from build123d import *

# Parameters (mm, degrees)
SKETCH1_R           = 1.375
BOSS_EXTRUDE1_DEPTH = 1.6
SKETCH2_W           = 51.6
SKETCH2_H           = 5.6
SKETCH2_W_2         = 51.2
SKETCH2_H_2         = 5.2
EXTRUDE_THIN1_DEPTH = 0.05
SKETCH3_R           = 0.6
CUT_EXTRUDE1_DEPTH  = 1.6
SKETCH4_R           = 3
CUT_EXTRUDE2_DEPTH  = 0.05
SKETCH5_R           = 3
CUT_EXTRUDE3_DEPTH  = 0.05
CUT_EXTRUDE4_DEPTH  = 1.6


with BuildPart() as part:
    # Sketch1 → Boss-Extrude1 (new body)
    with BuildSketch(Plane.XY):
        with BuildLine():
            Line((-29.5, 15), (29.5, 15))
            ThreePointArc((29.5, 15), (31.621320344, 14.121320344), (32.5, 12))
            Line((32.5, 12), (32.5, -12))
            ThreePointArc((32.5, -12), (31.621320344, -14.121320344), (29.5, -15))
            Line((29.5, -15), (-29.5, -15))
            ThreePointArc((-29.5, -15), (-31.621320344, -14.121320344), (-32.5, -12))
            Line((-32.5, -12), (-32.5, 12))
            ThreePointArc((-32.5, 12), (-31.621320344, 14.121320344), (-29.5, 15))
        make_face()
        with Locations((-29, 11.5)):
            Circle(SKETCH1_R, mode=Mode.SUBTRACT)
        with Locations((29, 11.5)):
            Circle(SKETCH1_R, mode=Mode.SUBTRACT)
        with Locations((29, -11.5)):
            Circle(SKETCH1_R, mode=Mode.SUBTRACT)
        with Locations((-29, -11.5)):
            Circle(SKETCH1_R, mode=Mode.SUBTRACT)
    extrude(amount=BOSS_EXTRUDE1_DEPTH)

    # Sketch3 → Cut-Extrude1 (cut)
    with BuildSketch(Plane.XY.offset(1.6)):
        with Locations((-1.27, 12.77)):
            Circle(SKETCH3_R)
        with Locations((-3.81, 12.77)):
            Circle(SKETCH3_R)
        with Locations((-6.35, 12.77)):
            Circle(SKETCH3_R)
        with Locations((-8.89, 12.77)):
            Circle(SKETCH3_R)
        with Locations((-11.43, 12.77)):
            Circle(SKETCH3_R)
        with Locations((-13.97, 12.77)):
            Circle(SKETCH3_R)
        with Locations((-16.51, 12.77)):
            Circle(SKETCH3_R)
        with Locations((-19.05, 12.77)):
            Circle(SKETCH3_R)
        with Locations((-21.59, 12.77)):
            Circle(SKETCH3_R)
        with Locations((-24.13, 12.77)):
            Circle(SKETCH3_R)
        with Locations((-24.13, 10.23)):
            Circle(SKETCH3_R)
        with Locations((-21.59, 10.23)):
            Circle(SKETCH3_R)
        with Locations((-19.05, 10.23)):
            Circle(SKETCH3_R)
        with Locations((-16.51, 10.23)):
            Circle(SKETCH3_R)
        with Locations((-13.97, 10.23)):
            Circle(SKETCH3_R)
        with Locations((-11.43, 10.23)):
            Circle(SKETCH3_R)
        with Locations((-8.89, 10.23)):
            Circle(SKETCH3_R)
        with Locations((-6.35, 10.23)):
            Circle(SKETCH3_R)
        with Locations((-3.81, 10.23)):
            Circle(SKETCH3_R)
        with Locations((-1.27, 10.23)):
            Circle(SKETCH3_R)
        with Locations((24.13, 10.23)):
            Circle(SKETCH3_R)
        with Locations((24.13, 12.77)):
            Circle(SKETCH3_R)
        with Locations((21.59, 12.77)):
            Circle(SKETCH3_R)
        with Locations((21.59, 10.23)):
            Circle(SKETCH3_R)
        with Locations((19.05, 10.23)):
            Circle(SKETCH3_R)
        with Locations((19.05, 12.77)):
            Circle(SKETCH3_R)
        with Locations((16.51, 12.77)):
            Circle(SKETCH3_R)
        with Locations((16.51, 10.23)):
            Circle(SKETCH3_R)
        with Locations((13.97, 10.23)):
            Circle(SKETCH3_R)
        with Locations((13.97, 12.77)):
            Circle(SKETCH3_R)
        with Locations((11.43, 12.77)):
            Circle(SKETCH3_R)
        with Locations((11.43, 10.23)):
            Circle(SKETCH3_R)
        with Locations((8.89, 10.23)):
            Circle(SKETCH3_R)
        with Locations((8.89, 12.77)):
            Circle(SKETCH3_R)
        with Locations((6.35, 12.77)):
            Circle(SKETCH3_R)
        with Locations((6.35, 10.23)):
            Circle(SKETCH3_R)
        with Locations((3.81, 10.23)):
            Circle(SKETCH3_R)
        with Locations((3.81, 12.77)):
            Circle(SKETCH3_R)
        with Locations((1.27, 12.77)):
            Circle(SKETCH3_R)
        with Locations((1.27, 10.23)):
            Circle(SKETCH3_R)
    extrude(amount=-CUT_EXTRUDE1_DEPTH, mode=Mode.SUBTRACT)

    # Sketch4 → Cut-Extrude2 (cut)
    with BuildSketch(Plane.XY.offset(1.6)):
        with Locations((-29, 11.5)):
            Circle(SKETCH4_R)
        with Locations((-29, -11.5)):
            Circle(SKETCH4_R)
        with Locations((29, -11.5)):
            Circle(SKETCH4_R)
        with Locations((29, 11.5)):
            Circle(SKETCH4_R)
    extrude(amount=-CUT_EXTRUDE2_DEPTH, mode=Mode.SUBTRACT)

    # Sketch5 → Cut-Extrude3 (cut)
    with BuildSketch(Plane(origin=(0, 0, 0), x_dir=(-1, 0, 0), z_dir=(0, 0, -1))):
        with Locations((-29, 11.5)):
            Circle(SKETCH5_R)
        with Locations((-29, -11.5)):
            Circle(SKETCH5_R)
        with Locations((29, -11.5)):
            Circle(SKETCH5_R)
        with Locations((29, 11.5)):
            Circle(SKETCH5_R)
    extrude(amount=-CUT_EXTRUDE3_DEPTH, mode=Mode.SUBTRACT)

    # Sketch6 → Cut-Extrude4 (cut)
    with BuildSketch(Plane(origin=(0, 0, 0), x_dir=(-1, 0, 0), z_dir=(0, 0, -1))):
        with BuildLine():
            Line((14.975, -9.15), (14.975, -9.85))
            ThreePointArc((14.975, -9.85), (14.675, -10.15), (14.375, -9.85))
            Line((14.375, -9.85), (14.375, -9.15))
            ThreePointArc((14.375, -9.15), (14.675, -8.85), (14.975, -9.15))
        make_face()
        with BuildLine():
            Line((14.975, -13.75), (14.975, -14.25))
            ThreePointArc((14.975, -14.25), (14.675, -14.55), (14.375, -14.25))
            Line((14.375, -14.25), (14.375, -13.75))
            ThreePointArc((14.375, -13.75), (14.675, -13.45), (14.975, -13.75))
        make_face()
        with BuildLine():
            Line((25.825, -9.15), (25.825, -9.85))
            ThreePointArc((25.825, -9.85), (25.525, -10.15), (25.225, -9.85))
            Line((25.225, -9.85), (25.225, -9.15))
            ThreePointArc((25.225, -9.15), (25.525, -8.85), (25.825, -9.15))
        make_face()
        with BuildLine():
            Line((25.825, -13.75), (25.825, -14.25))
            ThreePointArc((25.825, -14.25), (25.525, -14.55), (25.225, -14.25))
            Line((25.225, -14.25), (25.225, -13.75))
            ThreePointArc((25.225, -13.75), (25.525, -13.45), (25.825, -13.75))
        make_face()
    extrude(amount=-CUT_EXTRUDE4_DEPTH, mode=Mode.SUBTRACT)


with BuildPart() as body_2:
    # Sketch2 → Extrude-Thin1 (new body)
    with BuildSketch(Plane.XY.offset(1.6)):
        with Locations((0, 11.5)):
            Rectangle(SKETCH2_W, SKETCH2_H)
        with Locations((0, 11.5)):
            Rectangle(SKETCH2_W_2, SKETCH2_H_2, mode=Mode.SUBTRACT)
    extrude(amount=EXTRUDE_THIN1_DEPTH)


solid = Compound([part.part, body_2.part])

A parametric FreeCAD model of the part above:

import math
import FreeCAD as App
import Part
import Sketcher

V = App.Vector
Q = App.Units.Quantity


def add_polygon(sketch, points):
    """Adds a closed chain of lines whose ends are joined by coincident constraints."""
    first, n = sketch.GeometryCount, len(points)
    for a, b in zip(points, points[1:] + points[:1]):
        sketch.addGeometry(Part.LineSegment(App.Vector(*a, 0), App.Vector(*b, 0)), False)
    for i in range(n):
        sketch.addConstraint(Sketcher.Constraint("Coincident", first + i, 2, first + (i + 1) % n, 1))

doc = App.newDocument("Part")
body = doc.addObject("PartDesign::Body", "Body")

# Sketch on XY plane
sketch1 = body.newObject("Sketcher::SketchObject", "Sketch")
sketch1.AttachmentSupport = (doc.getObject("XY_Plane"), [""])
sketch1.MapMode = "FlatFace"
sketch1.addGeometry(Part.LineSegment(V(29.5, 15, 0), V(-29.5, 15, 0)), False)
sketch1.addGeometry(Part.ArcOfCircle(Part.Circle(V(-29.5, 12, 0), V(0, 0, 1), 3), math.radians(90), math.radians(180)), False)
sketch1.addGeometry(Part.LineSegment(V(-32.5, 12, 0), V(-32.5, -12, 0)), False)
sketch1.addGeometry(Part.ArcOfCircle(Part.Circle(V(-29.5, -12, 0), V(0, 0, 1), 3), math.radians(180), math.radians(270)), False)
sketch1.addGeometry(Part.LineSegment(V(-29.5, -15, 0), V(29.5, -15, 0)), False)
sketch1.addGeometry(Part.ArcOfCircle(Part.Circle(V(29.5, -12, 0), V(0, 0, 1), 3), math.radians(-90), math.radians(0)), False)
sketch1.addGeometry(Part.LineSegment(V(32.5, -12, 0), V(32.5, 12, 0)), False)
sketch1.addGeometry(Part.ArcOfCircle(Part.Circle(V(29.5, 12, 0), V(0, 0, 1), 3), math.radians(0), math.radians(90)), False)
sketch1.addGeometry(Part.Circle(V(29, -11.5, 0), V(0, 0, 1), 1.375), False)
sketch1.addGeometry(Part.Circle(V(-29, -11.5, 0), V(0, 0, 1), 1.375), False)
sketch1.addGeometry(Part.Circle(V(29, 11.5, 0), V(0, 0, 1), 1.375), False)
sketch1.addGeometry(Part.Circle(V(-29, 11.5, 0), V(0, 0, 1), 1.375), False)
sketch1.addConstraint(Sketcher.Constraint("Tangent", 0, 2, 1, 1))
sketch1.addConstraint(Sketcher.Constraint("Tangent", 1, 2, 2, 1))
sketch1.addConstraint(Sketcher.Constraint("Tangent", 2, 2, 3, 1))
sketch1.addConstraint(Sketcher.Constraint("Tangent", 3, 2, 4, 1))
sketch1.addConstraint(Sketcher.Constraint("Tangent", 4, 2, 5, 1))
sketch1.addConstraint(Sketcher.Constraint("Tangent", 5, 2, 6, 1))
sketch1.addConstraint(Sketcher.Constraint("Tangent", 6, 2, 7, 1))
sketch1.addConstraint(Sketcher.Constraint("Tangent", 7, 2, 0, 1))
sketch1.addConstraint(Sketcher.Constraint("Horizontal", 0))
sketch1.addConstraint(Sketcher.Constraint("Vertical", 2))
sketch1.addConstraint(Sketcher.Constraint("Horizontal", 4))
sketch1.addConstraint(Sketcher.Constraint("Vertical", 6))
sketch1.addConstraint(Sketcher.Constraint("Equal", 1, 3))
sketch1.addConstraint(Sketcher.Constraint("Equal", 3, 5))
sketch1.addConstraint(Sketcher.Constraint("Equal", 5, 7))
sketch1.addConstraint(Sketcher.Constraint("Equal", 8, 9))
sketch1.addConstraint(Sketcher.Constraint("Equal", 9, 10))
sketch1.addConstraint(Sketcher.Constraint("Equal", 10, 11))
sketch1.addConstraint(Sketcher.Constraint("Symmetric", 1, 3, 5, 3, -1, 1))
sketch1.addConstraint(Sketcher.Constraint("Symmetric", 9, 3, 10, 3, -1, 1))
sketch1.addConstraint(Sketcher.Constraint("Symmetric", 8, 3, 11, 3, -1, 1))
sketch1.addConstraint(Sketcher.Constraint("Symmetric", 8, 3, 9, 3, -2))
sketch1.addConstraint(Sketcher.Constraint("Radius", 1, Q("3 mm")))
sketch1.addConstraint(Sketcher.Constraint("Diameter", 8, Q("2.75 mm")))
sketch1.addConstraint(Sketcher.Constraint("DistanceX", 0, 2, 0, 1, Q("59 mm")))
sketch1.addConstraint(Sketcher.Constraint("DistanceY", 2, 2, 2, 1, Q("24 mm")))
sketch1.addConstraint(Sketcher.Constraint("DistanceX", -1, 1, 8, 3, Q("29 mm")))
sketch1.addConstraint(Sketcher.Constraint("DistanceY", 8, 3, 10, 3, Q("23 mm")))
pad1 = body.newObject("PartDesign::Pad", "Pad")
pad1.Profile = sketch1
pad1.Length = 1.6

# Sketch on XY plane
sketch2 = body.newObject("Sketcher::SketchObject", "Sketch001")
sketch2.AttachmentSupport = (doc.getObject("XY_Plane"), [""])
sketch2.MapMode = "FlatFace"
sketch2.AttachmentOffset = App.Placement(V(0, 0, 1.6), App.Rotation())
sketch2.addGeometry(Part.Circle(V(-1.27, 12.77, 0), V(0, 0, 1), 0.6), False)
sketch2.addGeometry(Part.Circle(V(-3.81, 12.77, 0), V(0, 0, 1), 0.6), False)
sketch2.addGeometry(Part.Circle(V(-6.35, 12.77, 0), V(0, 0, 1), 0.6), False)
sketch2.addGeometry(Part.Circle(V(-8.89, 12.77, 0), V(0, 0, 1), 0.6), False)
sketch2.addGeometry(Part.Circle(V(-11.43, 12.77, 0), V(0, 0, 1), 0.6), False)
sketch2.addGeometry(Part.Circle(V(-13.97, 12.77, 0), V(0, 0, 1), 0.6), False)
sketch2.addGeometry(Part.Circle(V(-16.51, 12.77, 0), V(0, 0, 1), 0.6), False)
sketch2.addGeometry(Part.Circle(V(-19.05, 12.77, 0), V(0, 0, 1), 0.6), False)
sketch2.addGeometry(Part.Circle(V(-21.59, 12.77, 0), V(0, 0, 1), 0.6), False)
sketch2.addGeometry(Part.Circle(V(-24.13, 12.77, 0), V(0, 0, 1), 0.6), False)
sketch2.addGeometry(Part.Circle(V(-24.13, 10.23, 0), V(0, 0, 1), 0.6), False)
sketch2.addGeometry(Part.Circle(V(-21.59, 10.23, 0), V(0, 0, 1), 0.6), False)
sketch2.addGeometry(Part.Circle(V(-19.05, 10.23, 0), V(0, 0, 1), 0.6), False)
sketch2.addGeometry(Part.Circle(V(-16.51, 10.23, 0), V(0, 0, 1), 0.6), False)
sketch2.addGeometry(Part.Circle(V(-13.97, 10.23, 0), V(0, 0, 1), 0.6), False)
sketch2.addGeometry(Part.Circle(V(-11.43, 10.23, 0), V(0, 0, 1), 0.6), False)
sketch2.addGeometry(Part.Circle(V(-8.89, 10.23, 0), V(0, 0, 1), 0.6), False)
sketch2.addGeometry(Part.Circle(V(-6.35, 10.23, 0), V(0, 0, 1), 0.6), False)
sketch2.addGeometry(Part.Circle(V(-3.81, 10.23, 0), V(0, 0, 1), 0.6), False)
sketch2.addGeometry(Part.Circle(V(-1.27, 10.23, 0), V(0, 0, 1), 0.6), False)
sketch2.addGeometry(Part.Circle(V(24.13, 10.23, 0), V(0, 0, 1), 0.6), False)
sketch2.addGeometry(Part.Circle(V(24.13, 12.77, 0), V(0, 0, 1), 0.6), False)
sketch2.addGeometry(Part.Circle(V(21.59, 12.77, 0), V(0, 0, 1), 0.6), False)
sketch2.addGeometry(Part.Circle(V(21.59, 10.23, 0), V(0, 0, 1), 0.6), False)
sketch2.addGeometry(Part.Circle(V(19.05, 10.23, 0), V(0, 0, 1), 0.6), False)
sketch2.addGeometry(Part.Circle(V(19.05, 12.77, 0), V(0, 0, 1), 0.6), False)
sketch2.addGeometry(Part.Circle(V(16.51, 12.77, 0), V(0, 0, 1), 0.6), False)
sketch2.addGeometry(Part.Circle(V(16.51, 10.23, 0), V(0, 0, 1), 0.6), False)
sketch2.addGeometry(Part.Circle(V(13.97, 10.23, 0), V(0, 0, 1), 0.6), False)
sketch2.addGeometry(Part.Circle(V(13.97, 12.77, 0), V(0, 0, 1), 0.6), False)
sketch2.addGeometry(Part.Circle(V(11.43, 12.77, 0), V(0, 0, 1), 0.6), False)
sketch2.addGeometry(Part.Circle(V(11.43, 10.23, 0), V(0, 0, 1), 0.6), False)
sketch2.addGeometry(Part.Circle(V(8.89, 10.23, 0), V(0, 0, 1), 0.6), False)
sketch2.addGeometry(Part.Circle(V(8.89, 12.77, 0), V(0, 0, 1), 0.6), False)
sketch2.addGeometry(Part.Circle(V(6.35, 12.77, 0), V(0, 0, 1), 0.6), False)
sketch2.addGeometry(Part.Circle(V(6.35, 10.23, 0), V(0, 0, 1), 0.6), False)
sketch2.addGeometry(Part.Circle(V(3.81, 10.23, 0), V(0, 0, 1), 0.6), False)
sketch2.addGeometry(Part.Circle(V(3.81, 12.77, 0), V(0, 0, 1), 0.6), False)
sketch2.addGeometry(Part.Circle(V(1.27, 12.77, 0), V(0, 0, 1), 0.6), False)
sketch2.addGeometry(Part.Circle(V(1.27, 10.23, 0), V(0, 0, 1), 0.6), False)
sketch2.addConstraint(Sketcher.Constraint("Equal", 0, 1))
sketch2.addConstraint(Sketcher.Constraint("Equal", 1, 2))
sketch2.addConstraint(Sketcher.Constraint("Equal", 2, 3))
sketch2.addConstraint(Sketcher.Constraint("Equal", 3, 4))
sketch2.addConstraint(Sketcher.Constraint("Equal", 4, 5))
sketch2.addConstraint(Sketcher.Constraint("Equal", 5, 6))
sketch2.addConstraint(Sketcher.Constraint("Equal", 6, 7))
sketch2.addConstraint(Sketcher.Constraint("Equal", 7, 8))
sketch2.addConstraint(Sketcher.Constraint("Equal", 8, 9))
sketch2.addConstraint(Sketcher.Constraint("Equal", 9, 10))
sketch2.addConstraint(Sketcher.Constraint("Equal", 10, 11))
sketch2.addConstraint(Sketcher.Constraint("Equal", 11, 12))
sketch2.addConstraint(Sketcher.Constraint("Equal", 12, 13))
sketch2.addConstraint(Sketcher.Constraint("Equal", 13, 14))
sketch2.addConstraint(Sketcher.Constraint("Equal", 14, 15))
sketch2.addConstraint(Sketcher.Constraint("Equal", 15, 16))
sketch2.addConstraint(Sketcher.Constraint("Equal", 16, 17))
sketch2.addConstraint(Sketcher.Constraint("Equal", 17, 18))
sketch2.addConstraint(Sketcher.Constraint("Equal", 18, 19))
sketch2.addConstraint(Sketcher.Constraint("Equal", 19, 20))
sketch2.addConstraint(Sketcher.Constraint("Equal", 20, 21))
sketch2.addConstraint(Sketcher.Constraint("Equal", 21, 22))
sketch2.addConstraint(Sketcher.Constraint("Equal", 22, 23))
sketch2.addConstraint(Sketcher.Constraint("Equal", 23, 24))
sketch2.addConstraint(Sketcher.Constraint("Equal", 24, 25))
sketch2.addConstraint(Sketcher.Constraint("Equal", 25, 26))
sketch2.addConstraint(Sketcher.Constraint("Equal", 26, 27))
sketch2.addConstraint(Sketcher.Constraint("Equal", 27, 28))
sketch2.addConstraint(Sketcher.Constraint("Equal", 28, 29))
sketch2.addConstraint(Sketcher.Constraint("Equal", 29, 30))
sketch2.addConstraint(Sketcher.Constraint("Equal", 30, 31))
sketch2.addConstraint(Sketcher.Constraint("Equal", 31, 32))
sketch2.addConstraint(Sketcher.Constraint("Equal", 32, 33))
sketch2.addConstraint(Sketcher.Constraint("Equal", 33, 34))
sketch2.addConstraint(Sketcher.Constraint("Equal", 34, 35))
sketch2.addConstraint(Sketcher.Constraint("Equal", 35, 36))
sketch2.addConstraint(Sketcher.Constraint("Equal", 36, 37))
sketch2.addConstraint(Sketcher.Constraint("Equal", 37, 38))
sketch2.addConstraint(Sketcher.Constraint("Equal", 38, 39))
sketch2.addConstraint(Sketcher.Constraint("Symmetric", 10, 3, 20, 3, -2))
sketch2.addConstraint(Sketcher.Constraint("Symmetric", 9, 3, 21, 3, -2))
sketch2.addConstraint(Sketcher.Constraint("Symmetric", 8, 3, 22, 3, -2))
sketch2.addConstraint(Sketcher.Constraint("Symmetric", 11, 3, 23, 3, -2))
sketch2.addConstraint(Sketcher.Constraint("Symmetric", 12, 3, 24, 3, -2))
sketch2.addConstraint(Sketcher.Constraint("Symmetric", 7, 3, 25, 3, -2))
sketch2.addConstraint(Sketcher.Constraint("Symmetric", 6, 3, 26, 3, -2))
sketch2.addConstraint(Sketcher.Constraint("Symmetric", 13, 3, 27, 3, -2))
sketch2.addConstraint(Sketcher.Constraint("Symmetric", 14, 3, 28, 3, -2))
sketch2.addConstraint(Sketcher.Constraint("Symmetric", 5, 3, 29, 3, -2))
sketch2.addConstraint(Sketcher.Constraint("Symmetric", 4, 3, 30, 3, -2))
sketch2.addConstraint(Sketcher.Constraint("Symmetric", 15, 3, 31, 3, -2))
sketch2.addConstraint(Sketcher.Constraint("Symmetric", 16, 3, 32, 3, -2))
sketch2.addConstraint(Sketcher.Constraint("Symmetric", 3, 3, 33, 3, -2))
sketch2.addConstraint(Sketcher.Constraint("Symmetric", 2, 3, 34, 3, -2))
sketch2.addConstraint(Sketcher.Constraint("Symmetric", 17, 3, 35, 3, -2))
sketch2.addConstraint(Sketcher.Constraint("Symmetric", 18, 3, 36, 3, -2))
sketch2.addConstraint(Sketcher.Constraint("Symmetric", 1, 3, 37, 3, -2))
sketch2.addConstraint(Sketcher.Constraint("Symmetric", 0, 3, 38, 3, -2))
sketch2.addConstraint(Sketcher.Constraint("Symmetric", 19, 3, 39, 3, -2))
sketch2.addConstraint(Sketcher.Constraint("Horizontal", 0, 3, 1, 3))
sketch2.addConstraint(Sketcher.Constraint("Horizontal", 1, 3, 2, 3))
sketch2.addConstraint(Sketcher.Constraint("Horizontal", 2, 3, 3, 3))
sketch2.addConstraint(Sketcher.Constraint("Horizontal", 3, 3, 4, 3))
sketch2.addConstraint(Sketcher.Constraint("Horizontal", 4, 3, 5, 3))
sketch2.addConstraint(Sketcher.Constraint("Horizontal", 5, 3, 6, 3))
sketch2.addConstraint(Sketcher.Constraint("Horizontal", 6, 3, 7, 3))
sketch2.addConstraint(Sketcher.Constraint("Horizontal", 7, 3, 8, 3))
sketch2.addConstraint(Sketcher.Constraint("Horizontal", 8, 3, 9, 3))
sketch2.addConstraint(Sketcher.Constraint("Horizontal", 10, 3, 11, 3))
sketch2.addConstraint(Sketcher.Constraint("Horizontal", 11, 3, 12, 3))
sketch2.addConstraint(Sketcher.Constraint("Horizontal", 12, 3, 13, 3))
sketch2.addConstraint(Sketcher.Constraint("Horizontal", 13, 3, 14, 3))
sketch2.addConstraint(Sketcher.Constraint("Horizontal", 14, 3, 15, 3))
sketch2.addConstraint(Sketcher.Constraint("Horizontal", 15, 3, 16, 3))
sketch2.addConstraint(Sketcher.Constraint("Horizontal", 16, 3, 17, 3))
sketch2.addConstraint(Sketcher.Constraint("Horizontal", 17, 3, 18, 3))
sketch2.addConstraint(Sketcher.Constraint("Horizontal", 18, 3, 19, 3))
sketch2.addConstraint(Sketcher.Constraint("Vertical", 9, 3, 10, 3))
sketch2.addConstraint(Sketcher.Constraint("Vertical", 8, 3, 11, 3))
sketch2.addConstraint(Sketcher.Constraint("Vertical", 7, 3, 12, 3))
sketch2.addConstraint(Sketcher.Constraint("Vertical", 6, 3, 13, 3))
sketch2.addConstraint(Sketcher.Constraint("Vertical", 5, 3, 14, 3))
sketch2.addConstraint(Sketcher.Constraint("Vertical", 4, 3, 15, 3))
sketch2.addConstraint(Sketcher.Constraint("Vertical", 3, 3, 16, 3))
sketch2.addConstraint(Sketcher.Constraint("Vertical", 2, 3, 17, 3))
sketch2.addConstraint(Sketcher.Constraint("Vertical", 1, 3, 18, 3))
sketch2.addConstraint(Sketcher.Constraint("Vertical", 0, 3, 19, 3))
sketch2.addConstraint(Sketcher.Constraint("Diameter", 0, Q("1.2 mm")))
sketch2.addConstraint(Sketcher.Constraint("DistanceX", 5, 3, 0, 3, Q("12.7 mm")))
sketch2.addConstraint(Sketcher.Constraint("DistanceX", 6, 3, 1, 3, Q("12.7 mm")))
sketch2.addConstraint(Sketcher.Constraint("DistanceX", 7, 3, 2, 3, Q("12.7 mm")))
sketch2.addConstraint(Sketcher.Constraint("DistanceX", 8, 3, 3, 3, Q("12.7 mm")))
sketch2.addConstraint(Sketcher.Constraint("DistanceX", 9, 3, 4, 3, Q("12.7 mm")))
sketch2.addConstraint(Sketcher.Constraint("DistanceX", 19, 3, 20, 3, Q("25.4 mm")))
sketch2.addConstraint(Sketcher.Constraint("DistanceX", 1, 3, 22, 3, Q("25.4 mm")))
sketch2.addConstraint(Sketcher.Constraint("DistanceX", 0, 3, -1, 1, Q("1.27 mm")))
sketch2.addConstraint(Sketcher.Constraint("DistanceY", -1, 1, 0, 3, Q("12.77 mm")))
sketch2.addConstraint(Sketcher.Constraint("DistanceX", 1, 3, -1, 1, Q("3.81 mm")))
sketch2.addConstraint(Sketcher.Constraint("DistanceX", 2, 3, -1, 1, Q("6.35 mm")))
sketch2.addConstraint(Sketcher.Constraint("DistanceY", -1, 1, 10, 3, Q("10.23 mm")))
pocket1 = body.newObject("PartDesign::Pocket", "Pocket")
pocket1.Profile = sketch2
pocket1.Length = 1.6

# Sketch on XY plane
sketch3 = body.newObject("Sketcher::SketchObject", "Sketch002")
sketch3.AttachmentSupport = (doc.getObject("XY_Plane"), [""])
sketch3.MapMode = "FlatFace"
sketch3.AttachmentOffset = App.Placement(V(0, 0, 1.6), App.Rotation())
sketch3.addGeometry(Part.Circle(V(-29, 11.5, 0), V(0, 0, 1), 3), False)
sketch3.addGeometry(Part.Circle(V(-29, -11.5, 0), V(0, 0, 1), 3), False)
sketch3.addGeometry(Part.Circle(V(29, -11.5, 0), V(0, 0, 1), 3), False)
sketch3.addGeometry(Part.Circle(V(29, 11.5, 0), V(0, 0, 1), 3), False)
sketch3.addConstraint(Sketcher.Constraint("Equal", 0, 1))
sketch3.addConstraint(Sketcher.Constraint("Equal", 1, 2))
sketch3.addConstraint(Sketcher.Constraint("Equal", 2, 3))
sketch3.addConstraint(Sketcher.Constraint("Symmetric", 0, 3, 2, 3, -1, 1))
sketch3.addConstraint(Sketcher.Constraint("Symmetric", 1, 3, 3, 3, -1, 1))
sketch3.addConstraint(Sketcher.Constraint("Symmetric", 1, 3, 2, 3, -2))
sketch3.addConstraint(Sketcher.Constraint("Diameter", 0, Q("6 mm")))
sketch3.addConstraint(Sketcher.Constraint("DistanceX", 0, 3, -1, 1, Q("29 mm")))
sketch3.addConstraint(Sketcher.Constraint("DistanceY", 1, 3, 0, 3, Q("23 mm")))
pocket2 = body.newObject("PartDesign::Pocket", "Pocket001")
pocket2.Profile = sketch3
pocket2.Length = 0.05

# Sketch on XY plane
sketch4 = body.newObject("Sketcher::SketchObject", "Sketch003")
sketch4.AttachmentSupport = (doc.getObject("XY_Plane"), [""])
sketch4.MapMode = "FlatFace"
sketch4.addGeometry(Part.Circle(V(29, 11.5, 0), V(0, 0, 1), 3), False)
sketch4.addGeometry(Part.Circle(V(29, -11.5, 0), V(0, 0, 1), 3), False)
sketch4.addGeometry(Part.Circle(V(-29, -11.5, 0), V(0, 0, 1), 3), False)
sketch4.addGeometry(Part.Circle(V(-29, 11.5, 0), V(0, 0, 1), 3), False)
sketch4.addConstraint(Sketcher.Constraint("Equal", 0, 1))
sketch4.addConstraint(Sketcher.Constraint("Equal", 1, 2))
sketch4.addConstraint(Sketcher.Constraint("Equal", 2, 3))
sketch4.addConstraint(Sketcher.Constraint("Symmetric", 0, 3, 2, 3, -1, 1))
sketch4.addConstraint(Sketcher.Constraint("Symmetric", 1, 3, 3, 3, -1, 1))
sketch4.addConstraint(Sketcher.Constraint("Symmetric", 1, 3, 2, 3, -2))
sketch4.addConstraint(Sketcher.Constraint("Diameter", 0, Q("6 mm")))
sketch4.addConstraint(Sketcher.Constraint("DistanceX", -1, 1, 0, 3, Q("29 mm")))
sketch4.addConstraint(Sketcher.Constraint("DistanceY", 1, 3, 0, 3, Q("23 mm")))
pocket3 = body.newObject("PartDesign::Pocket", "Pocket002")
pocket3.Profile = sketch4
pocket3.Length = 0.05
pocket3.Reversed = True

# Sketch on XY plane
sketch5 = body.newObject("Sketcher::SketchObject", "Sketch004")
sketch5.AttachmentSupport = (doc.getObject("XY_Plane"), [""])
sketch5.MapMode = "FlatFace"
sketch5.addGeometry(Part.LineSegment(V(-14.975, -9.85, 0), V(-14.975, -9.15, 0)), False)
sketch5.addGeometry(Part.ArcOfCircle(Part.Circle(V(-14.675, -9.15, 0), V(0, 0, 1), 0.3), math.radians(0), math.radians(180)), False)
sketch5.addGeometry(Part.LineSegment(V(-14.375, -9.15, 0), V(-14.375, -9.85, 0)), False)
sketch5.addGeometry(Part.ArcOfCircle(Part.Circle(V(-14.675, -9.85, 0), V(0, 0, 1), 0.3), math.radians(180), math.radians(360)), False)
sketch5.addGeometry(Part.LineSegment(V(-14.975, -14.25, 0), V(-14.975, -13.75, 0)), False)
sketch5.addGeometry(Part.ArcOfCircle(Part.Circle(V(-14.675, -13.75, 0), V(0, 0, 1), 0.3), math.radians(0), math.radians(180)), False)
sketch5.addGeometry(Part.LineSegment(V(-14.375, -13.75, 0), V(-14.375, -14.25, 0)), False)
sketch5.addGeometry(Part.ArcOfCircle(Part.Circle(V(-14.675, -14.25, 0), V(0, 0, 1), 0.3), math.radians(180), math.radians(360)), False)
sketch5.addGeometry(Part.LineSegment(V(-25.825, -9.85, 0), V(-25.825, -9.15, 0)), False)
sketch5.addGeometry(Part.ArcOfCircle(Part.Circle(V(-25.525, -9.15, 0), V(0, 0, 1), 0.3), math.radians(0), math.radians(180)), False)
sketch5.addGeometry(Part.LineSegment(V(-25.225, -9.15, 0), V(-25.225, -9.85, 0)), False)
sketch5.addGeometry(Part.ArcOfCircle(Part.Circle(V(-25.525, -9.85, 0), V(0, 0, 1), 0.3), math.radians(180), math.radians(360)), False)
sketch5.addGeometry(Part.LineSegment(V(-25.825, -14.25, 0), V(-25.825, -13.75, 0)), False)
sketch5.addGeometry(Part.ArcOfCircle(Part.Circle(V(-25.525, -13.75, 0), V(0, 0, 1), 0.3), math.radians(0), math.radians(180)), False)
sketch5.addGeometry(Part.LineSegment(V(-25.225, -13.75, 0), V(-25.225, -14.25, 0)), False)
sketch5.addGeometry(Part.ArcOfCircle(Part.Circle(V(-25.525, -14.25, 0), V(0, 0, 1), 0.3), math.radians(180), math.radians(360)), False)
sketch5.addConstraint(Sketcher.Constraint("Tangent", 0, 2, 1, 2))
sketch5.addConstraint(Sketcher.Constraint("Tangent", 1, 1, 2, 1))
sketch5.addConstraint(Sketcher.Constraint("Tangent", 2, 2, 3, 2))
sketch5.addConstraint(Sketcher.Constraint("Tangent", 3, 1, 0, 1))
sketch5.addConstraint(Sketcher.Constraint("Tangent", 4, 2, 5, 2))
sketch5.addConstraint(Sketcher.Constraint("Tangent", 5, 1, 6, 1))
sketch5.addConstraint(Sketcher.Constraint("Tangent", 6, 2, 7, 2))
sketch5.addConstraint(Sketcher.Constraint("Tangent", 7, 1, 4, 1))
sketch5.addConstraint(Sketcher.Constraint("Tangent", 8, 2, 9, 2))
sketch5.addConstraint(Sketcher.Constraint("Tangent", 9, 1, 10, 1))
sketch5.addConstraint(Sketcher.Constraint("Tangent", 10, 2, 11, 2))
sketch5.addConstraint(Sketcher.Constraint("Tangent", 11, 1, 8, 1))
sketch5.addConstraint(Sketcher.Constraint("Tangent", 12, 2, 13, 2))
sketch5.addConstraint(Sketcher.Constraint("Tangent", 13, 1, 14, 1))
sketch5.addConstraint(Sketcher.Constraint("Tangent", 14, 2, 15, 2))
sketch5.addConstraint(Sketcher.Constraint("Tangent", 15, 1, 12, 1))
sketch5.addConstraint(Sketcher.Constraint("Vertical", 0))
sketch5.addConstraint(Sketcher.Constraint("Vertical", 2))
sketch5.addConstraint(Sketcher.Constraint("Vertical", 4))
sketch5.addConstraint(Sketcher.Constraint("Vertical", 6))
sketch5.addConstraint(Sketcher.Constraint("Vertical", 8))
sketch5.addConstraint(Sketcher.Constraint("Vertical", 10))
sketch5.addConstraint(Sketcher.Constraint("Vertical", 12))
sketch5.addConstraint(Sketcher.Constraint("Vertical", 14))
sketch5.addConstraint(Sketcher.Constraint("Equal", 3, 5))
sketch5.addConstraint(Sketcher.Constraint("Equal", 7, 9))
sketch5.addConstraint(Sketcher.Constraint("Equal", 11, 13))
sketch5.addConstraint(Sketcher.Constraint("Horizontal", 1, 3, 9, 3))
sketch5.addConstraint(Sketcher.Constraint("Horizontal", 3, 3, 11, 3))
sketch5.addConstraint(Sketcher.Constraint("Horizontal", 5, 3, 13, 3))
sketch5.addConstraint(Sketcher.Constraint("Horizontal", 7, 3, 15, 3))
sketch5.addConstraint(Sketcher.Constraint("Vertical", 3, 3, 5, 3))
sketch5.addConstraint(Sketcher.Constraint("Vertical", 11, 3, 13, 3))
sketch5.addConstraint(Sketcher.Constraint("Radius", 1, Q("0.3 mm")))
sketch5.addConstraint(Sketcher.Constraint("DistanceY", 0, 1, 0, 2, Q("0.7 mm")))
sketch5.addConstraint(Sketcher.Constraint("DistanceY", 4, 1, 4, 2, Q("0.5 mm")))
sketch5.addConstraint(Sketcher.Constraint("DistanceY", 5, 3, 3, 3, Q("3.9 mm")))
sketch5.addConstraint(Sketcher.Constraint("DistanceY", 1, 3, -1, 1, Q("9.15 mm")))
sketch5.addConstraint(Sketcher.Constraint("DistanceX", 9, 3, 1, 3, Q("10.85 mm")))
sketch5.addConstraint(Sketcher.Constraint("DistanceX", 1, 3, -1, 1, Q("14.675 mm")))
pocket4 = body.newObject("PartDesign::Pocket", "Pocket003")
pocket4.Profile = sketch5
pocket4.Length = 1.6
pocket4.Reversed = True
body2 = doc.addObject("PartDesign::Body", "Body001")

# Sketch on XY plane
sketch6 = body2.newObject("Sketcher::SketchObject", "Sketch005")
sketch6.AttachmentSupport = (doc.getObject("XY_Plane001"), [""])
sketch6.MapMode = "FlatFace"
sketch6.AttachmentOffset = App.Placement(V(0, 0, 1.6), App.Rotation())
add_polygon(sketch6, [(-25.8, 14.3), (-25.8, 8.7), (25.8, 8.7), (25.8, 14.3)])  # lines 0-3
add_polygon(sketch6, [(25.6, 8.9), (-25.6, 8.9), (-25.6, 14.1), (25.6, 14.1)])  # lines 4-7
sketch6.addConstraint(Sketcher.Constraint("Vertical", 0))
sketch6.addConstraint(Sketcher.Constraint("Horizontal", 1))
sketch6.addConstraint(Sketcher.Constraint("Vertical", 2))
sketch6.addConstraint(Sketcher.Constraint("Horizontal", 3))
sketch6.addConstraint(Sketcher.Constraint("Horizontal", 4))
sketch6.addConstraint(Sketcher.Constraint("Vertical", 5))
sketch6.addConstraint(Sketcher.Constraint("Horizontal", 6))
sketch6.addConstraint(Sketcher.Constraint("Vertical", 7))
sketch6.addConstraint(Sketcher.Constraint("DistanceX", 1, 1, 1, 2, Q("51.6 mm")))
sketch6.addConstraint(Sketcher.Constraint("DistanceX", 4, 2, 4, 1, Q("51.2 mm")))
sketch6.addConstraint(Sketcher.Constraint("DistanceY", 0, 2, 0, 1, Q("5.6 mm")))
sketch6.addConstraint(Sketcher.Constraint("DistanceY", 5, 1, 5, 2, Q("5.2 mm")))
sketch6.addConstraint(Sketcher.Constraint("DistanceX", 0, 2, -1, 1, Q("25.8 mm")))
sketch6.addConstraint(Sketcher.Constraint("DistanceY", -1, 1, 0, 2, Q("8.7 mm")))
sketch6.addConstraint(Sketcher.Constraint("DistanceX", 4, 2, -1, 1, Q("25.6 mm")))
sketch6.addConstraint(Sketcher.Constraint("DistanceY", -1, 1, 4, 2, Q("8.9 mm")))
pad2 = body2.newObject("PartDesign::Pad", "Pad001")
pad2.Profile = sketch6
pad2.Length = 0.05

doc.recompute()
